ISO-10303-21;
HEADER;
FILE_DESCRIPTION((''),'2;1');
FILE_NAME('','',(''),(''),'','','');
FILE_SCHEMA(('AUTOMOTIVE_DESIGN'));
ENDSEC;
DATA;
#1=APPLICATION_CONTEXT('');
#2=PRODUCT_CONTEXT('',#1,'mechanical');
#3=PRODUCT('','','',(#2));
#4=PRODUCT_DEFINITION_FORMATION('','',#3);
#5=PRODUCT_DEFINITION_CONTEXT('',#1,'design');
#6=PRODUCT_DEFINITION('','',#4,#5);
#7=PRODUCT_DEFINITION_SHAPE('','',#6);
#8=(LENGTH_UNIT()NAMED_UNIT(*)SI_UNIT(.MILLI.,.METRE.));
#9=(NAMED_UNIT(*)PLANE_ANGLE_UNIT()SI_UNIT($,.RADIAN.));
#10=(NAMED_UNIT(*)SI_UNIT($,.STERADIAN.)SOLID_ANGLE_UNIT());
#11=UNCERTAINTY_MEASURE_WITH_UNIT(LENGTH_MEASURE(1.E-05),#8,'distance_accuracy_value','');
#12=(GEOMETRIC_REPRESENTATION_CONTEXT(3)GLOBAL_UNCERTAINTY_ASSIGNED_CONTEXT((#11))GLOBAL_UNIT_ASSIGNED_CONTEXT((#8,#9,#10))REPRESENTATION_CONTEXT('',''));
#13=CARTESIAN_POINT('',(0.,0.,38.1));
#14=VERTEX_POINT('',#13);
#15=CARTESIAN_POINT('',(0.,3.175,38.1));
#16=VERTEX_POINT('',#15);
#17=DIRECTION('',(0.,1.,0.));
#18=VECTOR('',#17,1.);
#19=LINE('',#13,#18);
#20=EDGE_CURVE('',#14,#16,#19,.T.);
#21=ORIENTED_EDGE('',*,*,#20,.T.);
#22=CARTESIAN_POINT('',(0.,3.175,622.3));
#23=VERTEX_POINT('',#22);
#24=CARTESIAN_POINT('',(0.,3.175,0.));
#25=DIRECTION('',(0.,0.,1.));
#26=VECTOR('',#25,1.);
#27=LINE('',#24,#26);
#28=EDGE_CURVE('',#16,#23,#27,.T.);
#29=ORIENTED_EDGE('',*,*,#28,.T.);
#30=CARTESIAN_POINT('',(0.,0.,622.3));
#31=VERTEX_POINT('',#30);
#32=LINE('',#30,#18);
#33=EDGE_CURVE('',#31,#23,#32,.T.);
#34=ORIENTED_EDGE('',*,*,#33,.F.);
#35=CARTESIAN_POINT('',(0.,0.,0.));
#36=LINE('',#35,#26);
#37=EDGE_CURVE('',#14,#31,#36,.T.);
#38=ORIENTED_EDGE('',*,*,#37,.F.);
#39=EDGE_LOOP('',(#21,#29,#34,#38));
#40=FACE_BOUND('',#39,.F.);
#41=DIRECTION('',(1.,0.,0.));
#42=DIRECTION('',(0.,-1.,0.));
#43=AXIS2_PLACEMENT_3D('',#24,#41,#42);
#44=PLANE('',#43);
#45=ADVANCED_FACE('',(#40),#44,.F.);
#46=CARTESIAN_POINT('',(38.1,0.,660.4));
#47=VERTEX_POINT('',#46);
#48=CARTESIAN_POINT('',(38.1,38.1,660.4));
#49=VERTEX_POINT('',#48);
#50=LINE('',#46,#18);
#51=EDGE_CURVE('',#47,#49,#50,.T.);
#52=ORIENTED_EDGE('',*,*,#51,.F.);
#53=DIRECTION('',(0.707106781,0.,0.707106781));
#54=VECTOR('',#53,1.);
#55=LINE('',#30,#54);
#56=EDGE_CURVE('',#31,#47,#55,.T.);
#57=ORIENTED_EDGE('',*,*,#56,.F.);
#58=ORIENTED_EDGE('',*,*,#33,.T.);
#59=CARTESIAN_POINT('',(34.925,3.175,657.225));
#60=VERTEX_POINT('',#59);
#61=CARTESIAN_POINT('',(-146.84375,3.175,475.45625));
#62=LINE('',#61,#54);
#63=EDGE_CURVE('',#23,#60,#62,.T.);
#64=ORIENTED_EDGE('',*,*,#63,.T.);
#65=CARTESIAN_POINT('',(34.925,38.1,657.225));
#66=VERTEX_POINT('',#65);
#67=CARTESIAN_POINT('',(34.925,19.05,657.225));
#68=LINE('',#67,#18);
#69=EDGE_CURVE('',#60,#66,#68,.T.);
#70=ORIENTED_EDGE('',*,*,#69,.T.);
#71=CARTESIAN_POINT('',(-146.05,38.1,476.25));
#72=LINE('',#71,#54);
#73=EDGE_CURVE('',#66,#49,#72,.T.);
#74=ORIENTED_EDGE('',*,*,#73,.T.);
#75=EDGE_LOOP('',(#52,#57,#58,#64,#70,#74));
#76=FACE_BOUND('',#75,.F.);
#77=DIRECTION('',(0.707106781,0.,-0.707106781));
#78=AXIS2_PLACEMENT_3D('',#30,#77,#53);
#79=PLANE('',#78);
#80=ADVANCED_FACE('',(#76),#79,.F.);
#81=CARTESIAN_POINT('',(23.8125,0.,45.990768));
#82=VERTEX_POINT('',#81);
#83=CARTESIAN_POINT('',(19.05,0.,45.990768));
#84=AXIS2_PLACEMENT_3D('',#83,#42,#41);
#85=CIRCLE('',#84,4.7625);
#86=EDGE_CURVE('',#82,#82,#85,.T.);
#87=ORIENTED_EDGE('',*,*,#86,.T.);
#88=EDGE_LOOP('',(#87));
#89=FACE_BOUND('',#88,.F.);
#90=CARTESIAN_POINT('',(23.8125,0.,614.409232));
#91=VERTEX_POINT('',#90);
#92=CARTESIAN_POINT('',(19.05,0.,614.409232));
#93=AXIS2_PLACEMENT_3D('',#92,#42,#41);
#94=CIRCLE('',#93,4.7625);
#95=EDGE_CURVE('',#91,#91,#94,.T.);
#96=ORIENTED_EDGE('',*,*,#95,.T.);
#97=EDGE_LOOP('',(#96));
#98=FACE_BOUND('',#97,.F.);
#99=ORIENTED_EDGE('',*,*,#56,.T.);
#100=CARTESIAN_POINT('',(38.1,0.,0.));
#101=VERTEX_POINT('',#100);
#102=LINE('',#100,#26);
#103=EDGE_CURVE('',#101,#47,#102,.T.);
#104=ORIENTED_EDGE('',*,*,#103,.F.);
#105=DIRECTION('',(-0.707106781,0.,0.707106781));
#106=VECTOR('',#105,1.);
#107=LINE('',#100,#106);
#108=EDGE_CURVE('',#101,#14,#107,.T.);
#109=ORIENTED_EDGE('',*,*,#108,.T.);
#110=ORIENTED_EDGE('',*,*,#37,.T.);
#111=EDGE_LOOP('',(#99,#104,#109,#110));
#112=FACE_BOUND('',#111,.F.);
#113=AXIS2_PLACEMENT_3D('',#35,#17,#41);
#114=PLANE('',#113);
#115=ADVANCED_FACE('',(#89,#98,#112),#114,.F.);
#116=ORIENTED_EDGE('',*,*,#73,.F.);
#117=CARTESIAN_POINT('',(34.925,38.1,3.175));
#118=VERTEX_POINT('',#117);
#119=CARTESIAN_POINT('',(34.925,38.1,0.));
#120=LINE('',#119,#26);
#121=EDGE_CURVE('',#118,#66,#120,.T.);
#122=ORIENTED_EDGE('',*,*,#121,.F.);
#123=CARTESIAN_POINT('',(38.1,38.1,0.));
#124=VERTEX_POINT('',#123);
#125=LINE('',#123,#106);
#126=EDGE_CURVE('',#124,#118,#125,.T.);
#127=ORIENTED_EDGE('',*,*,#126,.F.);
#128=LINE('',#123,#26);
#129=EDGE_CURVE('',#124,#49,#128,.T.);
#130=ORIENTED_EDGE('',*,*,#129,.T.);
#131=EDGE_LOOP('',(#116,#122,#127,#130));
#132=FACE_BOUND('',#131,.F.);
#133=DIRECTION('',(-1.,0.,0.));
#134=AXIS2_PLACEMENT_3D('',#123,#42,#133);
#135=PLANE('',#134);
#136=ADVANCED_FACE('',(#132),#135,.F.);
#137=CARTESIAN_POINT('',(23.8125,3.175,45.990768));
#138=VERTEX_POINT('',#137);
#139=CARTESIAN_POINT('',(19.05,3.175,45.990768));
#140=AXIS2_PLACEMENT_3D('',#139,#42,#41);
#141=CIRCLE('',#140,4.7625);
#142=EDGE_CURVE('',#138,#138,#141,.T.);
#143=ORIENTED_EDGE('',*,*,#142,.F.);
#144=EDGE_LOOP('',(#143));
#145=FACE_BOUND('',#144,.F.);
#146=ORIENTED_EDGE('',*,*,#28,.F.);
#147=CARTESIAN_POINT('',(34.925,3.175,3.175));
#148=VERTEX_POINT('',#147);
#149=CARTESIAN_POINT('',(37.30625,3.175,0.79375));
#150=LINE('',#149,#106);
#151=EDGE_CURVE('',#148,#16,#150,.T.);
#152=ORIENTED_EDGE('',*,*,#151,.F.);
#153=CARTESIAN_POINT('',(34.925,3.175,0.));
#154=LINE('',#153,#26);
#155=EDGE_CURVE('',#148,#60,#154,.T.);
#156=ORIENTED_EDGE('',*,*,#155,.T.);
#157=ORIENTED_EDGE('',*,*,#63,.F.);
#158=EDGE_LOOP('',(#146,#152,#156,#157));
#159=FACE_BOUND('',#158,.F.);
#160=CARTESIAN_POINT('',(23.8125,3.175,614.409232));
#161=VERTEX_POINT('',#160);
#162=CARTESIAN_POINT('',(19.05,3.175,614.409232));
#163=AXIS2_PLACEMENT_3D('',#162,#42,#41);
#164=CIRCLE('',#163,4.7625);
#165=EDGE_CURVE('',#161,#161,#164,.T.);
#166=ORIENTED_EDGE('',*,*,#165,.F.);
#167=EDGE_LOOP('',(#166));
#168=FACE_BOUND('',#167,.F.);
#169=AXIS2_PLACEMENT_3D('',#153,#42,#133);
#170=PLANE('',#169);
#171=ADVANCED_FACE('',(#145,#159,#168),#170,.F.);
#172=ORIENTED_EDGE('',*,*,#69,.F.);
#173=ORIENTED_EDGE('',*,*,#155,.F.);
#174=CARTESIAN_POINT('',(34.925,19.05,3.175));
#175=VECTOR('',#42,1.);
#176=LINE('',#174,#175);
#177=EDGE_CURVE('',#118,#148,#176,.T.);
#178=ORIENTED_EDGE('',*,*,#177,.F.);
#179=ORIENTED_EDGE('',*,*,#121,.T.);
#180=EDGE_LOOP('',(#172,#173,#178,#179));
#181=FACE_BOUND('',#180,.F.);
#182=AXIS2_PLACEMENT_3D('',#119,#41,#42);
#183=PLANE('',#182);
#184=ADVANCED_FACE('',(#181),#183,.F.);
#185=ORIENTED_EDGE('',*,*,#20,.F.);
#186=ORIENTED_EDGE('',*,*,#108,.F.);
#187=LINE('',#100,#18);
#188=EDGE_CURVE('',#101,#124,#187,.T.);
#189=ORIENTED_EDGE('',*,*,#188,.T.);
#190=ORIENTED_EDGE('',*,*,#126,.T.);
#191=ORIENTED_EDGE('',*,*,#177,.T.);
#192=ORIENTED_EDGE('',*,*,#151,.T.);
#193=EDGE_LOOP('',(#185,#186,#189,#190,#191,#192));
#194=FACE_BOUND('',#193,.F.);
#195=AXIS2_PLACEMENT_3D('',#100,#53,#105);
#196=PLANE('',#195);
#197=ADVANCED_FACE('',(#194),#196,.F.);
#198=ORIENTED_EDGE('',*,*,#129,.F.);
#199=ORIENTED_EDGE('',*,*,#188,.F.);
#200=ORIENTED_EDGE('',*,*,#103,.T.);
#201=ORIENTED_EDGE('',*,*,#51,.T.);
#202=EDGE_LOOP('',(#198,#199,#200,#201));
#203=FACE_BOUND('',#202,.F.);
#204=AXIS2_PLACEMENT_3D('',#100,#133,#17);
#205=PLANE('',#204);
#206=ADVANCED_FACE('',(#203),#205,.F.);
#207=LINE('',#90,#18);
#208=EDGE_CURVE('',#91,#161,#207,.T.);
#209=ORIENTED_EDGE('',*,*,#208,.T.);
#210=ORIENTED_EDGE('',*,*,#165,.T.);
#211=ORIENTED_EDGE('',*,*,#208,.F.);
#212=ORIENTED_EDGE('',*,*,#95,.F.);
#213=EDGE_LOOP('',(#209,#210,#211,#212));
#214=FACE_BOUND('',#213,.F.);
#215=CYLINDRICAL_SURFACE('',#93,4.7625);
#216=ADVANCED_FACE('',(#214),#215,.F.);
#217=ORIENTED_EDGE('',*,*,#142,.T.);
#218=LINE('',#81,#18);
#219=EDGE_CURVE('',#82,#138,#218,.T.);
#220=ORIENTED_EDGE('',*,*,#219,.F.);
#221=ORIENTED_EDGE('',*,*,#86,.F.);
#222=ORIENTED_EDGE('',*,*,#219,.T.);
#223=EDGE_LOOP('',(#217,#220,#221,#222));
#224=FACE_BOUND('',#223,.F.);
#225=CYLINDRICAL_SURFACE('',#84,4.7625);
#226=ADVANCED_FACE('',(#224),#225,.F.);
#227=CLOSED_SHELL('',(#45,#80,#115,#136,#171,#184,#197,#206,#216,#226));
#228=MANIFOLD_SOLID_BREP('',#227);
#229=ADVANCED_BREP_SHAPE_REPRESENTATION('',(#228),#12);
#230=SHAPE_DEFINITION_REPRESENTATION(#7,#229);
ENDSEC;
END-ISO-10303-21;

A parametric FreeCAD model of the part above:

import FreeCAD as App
import Part
import Sketcher
from FreeCAD import Vector
Q = App.Units.Quantity

doc = App.newDocument("Part")
body = doc.addObject("PartDesign::Body", "Body")

sketch1 = body.newObject("Sketcher::SketchObject", "Sketch")
sketch1.AttachmentSupport = (doc.getObject("XY_Plane"), [""])
sketch1.MapMode = "FlatFace"
sketch1.addGeometry(Part.LineSegment(Vector(0, 3.2, 0), Vector(0, 0, 0)), False)
sketch1.addGeometry(Part.LineSegment(Vector(0, 0, 0), Vector(38.1, 0, 0)), False)
sketch1.addGeometry(Part.LineSegment(Vector(38.1, 0, 0), Vector(38.1, 38.1, 0)), False)
sketch1.addGeometry(Part.LineSegment(Vector(38.1, 38.1, 0), Vector(34.9, 38.1, 0)), False)
sketch1.addGeometry(Part.LineSegment(Vector(34.9, 38.1, 0), Vector(34.9, 3.2, 0)), False)
sketch1.addGeometry(Part.LineSegment(Vector(34.9, 3.2, 0), Vector(0, 3.2, 0)), False)
sketch1.addConstraint(Sketcher.Constraint("Coincident", 0, 2, 1, 1))
sketch1.addConstraint(Sketcher.Constraint("Coincident", 1, 2, 2, 1))
sketch1.addConstraint(Sketcher.Constraint("Coincident", 2, 2, 3, 1))
sketch1.addConstraint(Sketcher.Constraint("Coincident", 3, 2, 4, 1))
sketch1.addConstraint(Sketcher.Constraint("Coincident", 4, 2, 5, 1))
sketch1.addConstraint(Sketcher.Constraint("Coincident", 5, 2, 0, 1))
sketch1.addConstraint(Sketcher.Constraint("Vertical", 0))
sketch1.addConstraint(Sketcher.Constraint("Horizontal", 1))
sketch1.addConstraint(Sketcher.Constraint("Vertical", 2))
sketch1.addConstraint(Sketcher.Constraint("Horizontal", 3))
sketch1.addConstraint(Sketcher.Constraint("Vertical", 4))
sketch1.addConstraint(Sketcher.Constraint("Horizontal", 5))
sketch1.addConstraint(Sketcher.Constraint("Coincident", 0, 2, -1, 1))
sketch1.addConstraint(Sketcher.Constraint("Equal", 3, 0))
sketch1.addConstraint(Sketcher.Constraint("Equal", 1, 2))
sketch1.addConstraint(Sketcher.Constraint("DistanceX", 1, 1, 1, 2, Q("1.5 in")))
sketch1.addConstraint(Sketcher.Constraint("DistanceX", 3, 2, 3, 1, Q("0.125 in")))
pad1 = body.newObject("PartDesign::Pad", "Pad")
pad1.Profile = sketch1
pad1.Length = Q("26 in")

sketch2 = body.newObject("Sketcher::SketchObject", "Sketch001")
sketch2.AttachmentSupport = (doc.getObject("XZ_Plane"), [""])
sketch2.MapMode = "FlatFace"
sketch2.addGeometry(Part.LineSegment(Vector(0, 622, 0), Vector(38, 660, 0)), False)
sketch2.addGeometry(Part.LineSegment(Vector(38, 660, 0), Vector(0, 660, 0)), False)
sketch2.addGeometry(Part.LineSegment(Vector(0, 660, 0), Vector(0, 622, 0)), False)
sketch2.addGeometry(Part.LineSegment(Vector(0, 0, 0), Vector(38, 0, 0)), False)
sketch2.addGeometry(Part.LineSegment(Vector(38, 0, 0), Vector(0, 38, 0)), False)
sketch2.addGeometry(Part.LineSegment(Vector(0, 38, 0), Vector(0, 0, 0)), False)
sketch2.addConstraint(Sketcher.Constraint("Coincident", 0, 2, 1, 1))
sketch2.addConstraint(Sketcher.Constraint("Coincident", 1, 2, 2, 1))
sketch2.addConstraint(Sketcher.Constraint("Coincident", 2, 2, 0, 1))
sketch2.addConstraint(Sketcher.Constraint("Coincident", 3, 2, 4, 1))
sketch2.addConstraint(Sketcher.Constraint("Coincident", 4, 2, 5, 1))
sketch2.addConstraint(Sketcher.Constraint("Coincident", 5, 2, 3, 1))
sketch2.addConstraint(Sketcher.Constraint("Horizontal", 1))
sketch2.addConstraint(Sketcher.Constraint("Vertical", 2))
sketch2.addConstraint(Sketcher.Constraint("Horizontal", 3))
sketch2.addConstraint(Sketcher.Constraint("Vertical", 5))
sketch2.addConstraint(Sketcher.Constraint("Coincident", 5, 2, -1, 1))
sketch2.addConstraint(Sketcher.Constraint("PointOnObject", 1, 2, -2))
sketch2.addConstraint(Sketcher.Constraint("Perpendicular", 0, 4))
sketch2.addConstraint(Sketcher.Constraint("Vertical", 0, 2, 3, 2))
sketch2.addConstraint(Sketcher.Constraint("Equal", 3, 2))
sketch2.addConstraint(Sketcher.Constraint("DistanceX", 1, 2, 1, 1, Q("1.5 in")))
sketch2.addConstraint(Sketcher.Constraint("DistanceY", -1, 1, 0, 2, Q("26 in")))
pocket1 = body.newObject("PartDesign::Pocket", "Pocket")
pocket1.Profile = sketch2
pocket1.Type = "ThroughAll"

sketch3 = body.newObject("Sketcher::SketchObject", "Sketch002")
sketch3.AttachmentSupport = (doc.getObject("XZ_Plane"), [""])
sketch3.MapMode = "FlatFace"
sketch3.addGeometry(Part.Circle(Vector(19.1, 46, 0), Vector(0, 0, 1), 4.8), False)
sketch3.addGeometry(Part.Circle(Vector(19.1, 614.4, 0), Vector(0, 0, 1), 4.8), False)
sketch3.addConstraint(Sketcher.Constraint("Equal", 0, 1))
sketch3.addConstraint(Sketcher.Constraint("Vertical", 0, 3, 1, 3))
sketch3.addConstraint(Sketcher.Constraint("Diameter", 0, Q("0.375 in")))
sketch3.addConstraint(Sketcher.Constraint("DistanceX", -1, 1, 0, 3, Q("0.75 in")))
sketch3.addConstraint(Sketcher.Constraint("DistanceY", -1, 1, 0, 3, 45.990768))
sketch3.addConstraint(Sketcher.Constraint("DistanceY", -1, 1, 1, 3, 614.409232))
pocket2 = body.newObject("PartDesign::Pocket", "Pocket001")
pocket2.Profile = sketch3
pocket2.Type = "ThroughAll"

doc.recompute()
